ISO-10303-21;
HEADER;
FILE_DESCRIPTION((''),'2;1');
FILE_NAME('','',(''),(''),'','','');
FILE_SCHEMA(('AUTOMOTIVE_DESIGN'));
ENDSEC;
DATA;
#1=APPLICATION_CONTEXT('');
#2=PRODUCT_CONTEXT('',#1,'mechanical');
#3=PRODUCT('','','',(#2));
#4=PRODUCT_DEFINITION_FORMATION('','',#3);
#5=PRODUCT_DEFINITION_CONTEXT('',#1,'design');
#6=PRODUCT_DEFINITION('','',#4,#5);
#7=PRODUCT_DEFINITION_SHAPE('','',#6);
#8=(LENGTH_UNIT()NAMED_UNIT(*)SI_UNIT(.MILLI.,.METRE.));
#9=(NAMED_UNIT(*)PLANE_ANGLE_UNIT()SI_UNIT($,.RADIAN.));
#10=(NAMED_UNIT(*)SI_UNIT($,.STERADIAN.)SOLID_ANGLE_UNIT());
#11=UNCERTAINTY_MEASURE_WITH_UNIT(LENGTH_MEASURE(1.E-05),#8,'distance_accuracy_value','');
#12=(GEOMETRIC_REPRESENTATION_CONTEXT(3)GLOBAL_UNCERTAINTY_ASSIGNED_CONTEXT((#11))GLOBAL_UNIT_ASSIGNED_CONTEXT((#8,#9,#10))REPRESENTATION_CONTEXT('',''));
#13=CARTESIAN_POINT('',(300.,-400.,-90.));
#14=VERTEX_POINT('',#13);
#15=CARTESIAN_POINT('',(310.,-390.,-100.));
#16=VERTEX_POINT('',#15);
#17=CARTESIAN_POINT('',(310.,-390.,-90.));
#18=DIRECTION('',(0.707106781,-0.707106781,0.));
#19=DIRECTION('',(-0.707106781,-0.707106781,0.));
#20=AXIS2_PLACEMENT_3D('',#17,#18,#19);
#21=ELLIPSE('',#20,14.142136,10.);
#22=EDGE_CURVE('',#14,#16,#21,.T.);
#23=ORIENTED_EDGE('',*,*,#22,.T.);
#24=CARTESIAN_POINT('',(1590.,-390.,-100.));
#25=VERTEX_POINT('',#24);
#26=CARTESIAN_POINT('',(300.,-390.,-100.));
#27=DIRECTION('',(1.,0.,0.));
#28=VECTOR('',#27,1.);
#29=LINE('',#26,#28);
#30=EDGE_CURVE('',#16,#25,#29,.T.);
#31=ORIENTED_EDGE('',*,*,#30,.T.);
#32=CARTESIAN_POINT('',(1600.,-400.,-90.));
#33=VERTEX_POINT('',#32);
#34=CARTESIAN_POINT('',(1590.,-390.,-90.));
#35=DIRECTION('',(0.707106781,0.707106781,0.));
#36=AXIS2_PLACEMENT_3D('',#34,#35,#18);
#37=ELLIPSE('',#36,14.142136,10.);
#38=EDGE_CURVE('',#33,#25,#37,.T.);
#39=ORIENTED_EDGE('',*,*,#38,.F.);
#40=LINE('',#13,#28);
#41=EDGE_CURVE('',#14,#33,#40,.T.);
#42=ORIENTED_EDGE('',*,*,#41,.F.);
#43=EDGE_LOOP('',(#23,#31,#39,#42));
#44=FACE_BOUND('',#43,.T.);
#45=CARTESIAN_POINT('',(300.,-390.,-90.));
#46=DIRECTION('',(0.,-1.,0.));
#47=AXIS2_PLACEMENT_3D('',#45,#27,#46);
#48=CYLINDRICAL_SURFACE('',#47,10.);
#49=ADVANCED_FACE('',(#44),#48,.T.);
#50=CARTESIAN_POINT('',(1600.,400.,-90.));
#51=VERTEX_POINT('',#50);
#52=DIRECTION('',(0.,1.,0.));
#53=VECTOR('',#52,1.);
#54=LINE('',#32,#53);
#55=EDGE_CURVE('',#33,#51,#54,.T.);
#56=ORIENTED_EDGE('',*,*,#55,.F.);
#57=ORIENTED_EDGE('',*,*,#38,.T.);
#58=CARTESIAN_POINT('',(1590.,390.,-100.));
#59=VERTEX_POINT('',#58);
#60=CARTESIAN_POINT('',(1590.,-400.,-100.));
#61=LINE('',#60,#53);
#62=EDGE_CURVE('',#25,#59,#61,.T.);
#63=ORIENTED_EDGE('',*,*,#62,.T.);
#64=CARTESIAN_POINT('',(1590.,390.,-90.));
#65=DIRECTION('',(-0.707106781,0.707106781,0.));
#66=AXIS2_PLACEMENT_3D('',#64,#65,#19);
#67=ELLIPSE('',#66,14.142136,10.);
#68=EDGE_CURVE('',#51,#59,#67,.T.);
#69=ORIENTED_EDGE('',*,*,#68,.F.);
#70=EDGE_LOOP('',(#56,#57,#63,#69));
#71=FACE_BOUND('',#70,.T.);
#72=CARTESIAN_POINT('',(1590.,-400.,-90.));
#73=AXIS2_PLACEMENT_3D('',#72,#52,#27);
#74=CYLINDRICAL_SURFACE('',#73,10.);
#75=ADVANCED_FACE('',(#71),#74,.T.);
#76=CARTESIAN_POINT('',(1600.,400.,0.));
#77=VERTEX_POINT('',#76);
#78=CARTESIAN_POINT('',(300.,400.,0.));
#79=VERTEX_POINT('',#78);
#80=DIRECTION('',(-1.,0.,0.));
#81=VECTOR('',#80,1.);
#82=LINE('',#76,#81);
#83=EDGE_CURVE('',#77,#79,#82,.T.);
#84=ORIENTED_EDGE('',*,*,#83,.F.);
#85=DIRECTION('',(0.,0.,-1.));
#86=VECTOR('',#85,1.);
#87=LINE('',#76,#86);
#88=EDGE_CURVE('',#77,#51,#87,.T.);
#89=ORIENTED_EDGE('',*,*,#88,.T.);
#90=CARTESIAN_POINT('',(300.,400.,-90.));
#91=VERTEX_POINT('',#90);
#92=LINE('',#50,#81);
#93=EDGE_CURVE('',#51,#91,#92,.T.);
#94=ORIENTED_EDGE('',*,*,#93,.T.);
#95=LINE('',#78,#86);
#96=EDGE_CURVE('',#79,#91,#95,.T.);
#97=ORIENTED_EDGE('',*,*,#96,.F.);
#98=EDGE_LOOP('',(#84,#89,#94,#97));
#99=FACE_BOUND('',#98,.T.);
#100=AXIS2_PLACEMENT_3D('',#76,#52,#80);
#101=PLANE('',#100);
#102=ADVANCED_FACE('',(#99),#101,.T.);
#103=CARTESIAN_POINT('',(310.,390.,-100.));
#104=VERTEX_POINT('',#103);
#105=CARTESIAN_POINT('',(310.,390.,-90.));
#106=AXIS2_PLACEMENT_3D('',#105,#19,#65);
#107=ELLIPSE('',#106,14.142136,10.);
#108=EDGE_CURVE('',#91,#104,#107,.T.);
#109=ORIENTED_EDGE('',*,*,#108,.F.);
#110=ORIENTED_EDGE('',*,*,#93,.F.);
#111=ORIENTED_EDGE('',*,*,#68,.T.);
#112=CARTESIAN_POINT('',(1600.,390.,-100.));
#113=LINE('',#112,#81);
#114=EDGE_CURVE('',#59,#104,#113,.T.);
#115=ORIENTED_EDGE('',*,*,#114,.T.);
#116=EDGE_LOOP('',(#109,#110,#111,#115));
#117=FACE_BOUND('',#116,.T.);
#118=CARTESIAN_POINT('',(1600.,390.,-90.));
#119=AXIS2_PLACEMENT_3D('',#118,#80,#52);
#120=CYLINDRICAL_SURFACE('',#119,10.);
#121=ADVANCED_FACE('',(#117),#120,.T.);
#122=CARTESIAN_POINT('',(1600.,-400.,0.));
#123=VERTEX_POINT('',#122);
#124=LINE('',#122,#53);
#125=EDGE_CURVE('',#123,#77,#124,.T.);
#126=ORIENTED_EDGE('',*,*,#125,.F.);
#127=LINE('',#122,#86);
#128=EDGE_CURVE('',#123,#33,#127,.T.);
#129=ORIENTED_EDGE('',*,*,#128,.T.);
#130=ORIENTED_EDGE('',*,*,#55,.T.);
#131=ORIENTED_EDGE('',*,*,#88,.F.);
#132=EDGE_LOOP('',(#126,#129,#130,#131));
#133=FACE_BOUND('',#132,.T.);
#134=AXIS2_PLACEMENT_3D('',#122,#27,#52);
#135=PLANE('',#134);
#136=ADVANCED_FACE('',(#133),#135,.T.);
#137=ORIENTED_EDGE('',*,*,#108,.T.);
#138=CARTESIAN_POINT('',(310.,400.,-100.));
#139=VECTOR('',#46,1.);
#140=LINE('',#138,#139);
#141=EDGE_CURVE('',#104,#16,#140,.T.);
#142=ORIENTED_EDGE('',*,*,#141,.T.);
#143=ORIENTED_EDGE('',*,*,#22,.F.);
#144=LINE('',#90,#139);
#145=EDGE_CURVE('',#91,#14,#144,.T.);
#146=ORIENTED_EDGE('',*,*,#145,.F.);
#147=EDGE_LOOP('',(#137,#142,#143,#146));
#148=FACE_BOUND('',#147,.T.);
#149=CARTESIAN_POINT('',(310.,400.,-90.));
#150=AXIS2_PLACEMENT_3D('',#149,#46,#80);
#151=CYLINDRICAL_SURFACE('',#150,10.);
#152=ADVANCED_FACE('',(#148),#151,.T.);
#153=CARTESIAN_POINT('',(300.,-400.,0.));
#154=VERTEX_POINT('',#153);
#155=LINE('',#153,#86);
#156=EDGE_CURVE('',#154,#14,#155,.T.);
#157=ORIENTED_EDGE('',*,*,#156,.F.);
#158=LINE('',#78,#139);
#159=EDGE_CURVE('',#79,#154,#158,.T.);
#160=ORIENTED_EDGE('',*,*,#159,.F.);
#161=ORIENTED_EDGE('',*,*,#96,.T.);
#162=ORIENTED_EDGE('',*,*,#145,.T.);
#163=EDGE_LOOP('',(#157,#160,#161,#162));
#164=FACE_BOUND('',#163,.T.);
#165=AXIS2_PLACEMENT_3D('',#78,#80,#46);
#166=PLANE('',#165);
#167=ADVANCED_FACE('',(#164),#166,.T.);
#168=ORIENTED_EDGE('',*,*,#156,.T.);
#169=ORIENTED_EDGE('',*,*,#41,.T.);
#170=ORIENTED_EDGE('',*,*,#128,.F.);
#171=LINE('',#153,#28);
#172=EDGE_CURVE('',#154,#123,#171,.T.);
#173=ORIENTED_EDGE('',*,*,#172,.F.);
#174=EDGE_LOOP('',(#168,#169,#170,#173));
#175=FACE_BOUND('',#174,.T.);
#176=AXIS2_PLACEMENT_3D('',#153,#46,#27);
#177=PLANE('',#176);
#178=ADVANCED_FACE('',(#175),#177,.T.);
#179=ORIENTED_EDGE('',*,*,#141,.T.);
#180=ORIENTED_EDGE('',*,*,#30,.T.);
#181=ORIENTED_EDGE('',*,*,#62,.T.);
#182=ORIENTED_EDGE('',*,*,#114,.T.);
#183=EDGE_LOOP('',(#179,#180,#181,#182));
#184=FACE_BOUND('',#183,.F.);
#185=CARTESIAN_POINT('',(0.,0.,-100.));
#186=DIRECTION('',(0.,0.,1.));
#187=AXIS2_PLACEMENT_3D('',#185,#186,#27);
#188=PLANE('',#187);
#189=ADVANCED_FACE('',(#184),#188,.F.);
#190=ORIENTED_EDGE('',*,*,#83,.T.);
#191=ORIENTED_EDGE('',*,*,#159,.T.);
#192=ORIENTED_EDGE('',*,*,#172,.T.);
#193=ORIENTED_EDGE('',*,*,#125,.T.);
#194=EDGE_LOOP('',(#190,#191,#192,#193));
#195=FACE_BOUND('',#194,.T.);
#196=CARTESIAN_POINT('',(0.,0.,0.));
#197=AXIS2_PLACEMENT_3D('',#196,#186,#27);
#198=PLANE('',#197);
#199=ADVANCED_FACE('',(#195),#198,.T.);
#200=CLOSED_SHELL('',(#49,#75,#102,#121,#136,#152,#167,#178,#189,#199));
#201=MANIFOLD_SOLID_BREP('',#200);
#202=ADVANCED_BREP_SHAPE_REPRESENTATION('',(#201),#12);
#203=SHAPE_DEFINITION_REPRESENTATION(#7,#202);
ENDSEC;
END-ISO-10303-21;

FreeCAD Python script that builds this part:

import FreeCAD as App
import Part
import Sketcher
from FreeCAD import Vector
Q = App.Units.Quantity


def edges_at(feature, points):
    """Names of the edges that pass closest to the given points."""
    edges = feature.Shape.Edges
    near = lambda p: min(range(len(edges)), key=lambda i: edges[i].distToShape(Part.Vertex(*p))[0])
    return sorted({f"Edge{near(p) + 1}" for p in points})

doc = App.newDocument("Part")
params = doc.addObject("Spreadsheet::Sheet", "Params")
for row, (alias, value) in enumerate([
    ("sketch1_width", "1300 mm"),
    ("sketch1_height", "800 mm"),
    ("pad1_length", "100 mm"),
    ("fillet_radius", "10 mm"),
], start=1):
    params.set(f"A{row}", alias)
    params.set(f"B{row}", "=" + value)
    params.setAlias(f"B{row}", alias)

body = doc.addObject("PartDesign::Body", "Body")

# Sketch on XY plane
sketch1 = doc.addObject("Sketcher::SketchObject", "Sketch")
body.addObject(sketch1)
sketch1.AttachmentSupport = (doc.XY_Plane, [""])
sketch1.MapMode = "FlatFace"
sketch1.addGeometry([
    Part.LineSegment(Vector(1600, -400, 0), Vector(1600, 400, 0)),
    Part.LineSegment(Vector(1600, 400, 0), Vector(300, 400, 0)),
    Part.LineSegment(Vector(300, 400, 0), Vector(300, -400, 0)),
    Part.LineSegment(Vector(300, -400, 0), Vector(1600, -400, 0)),
], False)
sketch1.addConstraint([
    Sketcher.Constraint("Coincident", 0, 2, 1, 1),
    Sketcher.Constraint("Coincident", 1, 2, 2, 1),
    Sketcher.Constraint("Coincident", 2, 2, 3, 1),
    Sketcher.Constraint("Coincident", 3, 2, 0, 1),
    Sketcher.Constraint("Vertical", 0),
    Sketcher.Constraint("Horizontal", 1),
    Sketcher.Constraint("Vertical", 2),
    Sketcher.Constraint("Horizontal", 3),
    Sketcher.Constraint("DistanceX", 1, 2, 1, 1, Q("1300 mm")),
    Sketcher.Constraint("DistanceY", 0, 1, 0, 2, Q("800 mm")),
    Sketcher.Constraint("DistanceX", -1, 1, 0, 2, Q("1600 mm")),
    Sketcher.Constraint("DistanceY", -1, 1, 0, 2, Q("400 mm")),
])
sketch1.setExpression("Constraints[8]", "Params.sketch1_width")
sketch1.setExpression("Constraints[9]", "Params.sketch1_height")
pad1 = doc.addObject("PartDesign::Pad", "Pad")
body.addObject(pad1)
pad1.Profile = sketch1
pad1.setExpression("Length", "Params.pad1_length")
pad1.Reversed = True
doc.recompute()

fillet = doc.addObject("PartDesign::Fillet", "Fillet")
body.addObject(fillet)
fillet.Base = (pad1, edges_at(pad1, [
    (950, 400, -100),
    (300, 0, -100),
    (950, -400, -100),
    (1600, 0, -100),
]))
fillet.setExpression("Radius", "Params.fillet_radius")

doc.recompute()
